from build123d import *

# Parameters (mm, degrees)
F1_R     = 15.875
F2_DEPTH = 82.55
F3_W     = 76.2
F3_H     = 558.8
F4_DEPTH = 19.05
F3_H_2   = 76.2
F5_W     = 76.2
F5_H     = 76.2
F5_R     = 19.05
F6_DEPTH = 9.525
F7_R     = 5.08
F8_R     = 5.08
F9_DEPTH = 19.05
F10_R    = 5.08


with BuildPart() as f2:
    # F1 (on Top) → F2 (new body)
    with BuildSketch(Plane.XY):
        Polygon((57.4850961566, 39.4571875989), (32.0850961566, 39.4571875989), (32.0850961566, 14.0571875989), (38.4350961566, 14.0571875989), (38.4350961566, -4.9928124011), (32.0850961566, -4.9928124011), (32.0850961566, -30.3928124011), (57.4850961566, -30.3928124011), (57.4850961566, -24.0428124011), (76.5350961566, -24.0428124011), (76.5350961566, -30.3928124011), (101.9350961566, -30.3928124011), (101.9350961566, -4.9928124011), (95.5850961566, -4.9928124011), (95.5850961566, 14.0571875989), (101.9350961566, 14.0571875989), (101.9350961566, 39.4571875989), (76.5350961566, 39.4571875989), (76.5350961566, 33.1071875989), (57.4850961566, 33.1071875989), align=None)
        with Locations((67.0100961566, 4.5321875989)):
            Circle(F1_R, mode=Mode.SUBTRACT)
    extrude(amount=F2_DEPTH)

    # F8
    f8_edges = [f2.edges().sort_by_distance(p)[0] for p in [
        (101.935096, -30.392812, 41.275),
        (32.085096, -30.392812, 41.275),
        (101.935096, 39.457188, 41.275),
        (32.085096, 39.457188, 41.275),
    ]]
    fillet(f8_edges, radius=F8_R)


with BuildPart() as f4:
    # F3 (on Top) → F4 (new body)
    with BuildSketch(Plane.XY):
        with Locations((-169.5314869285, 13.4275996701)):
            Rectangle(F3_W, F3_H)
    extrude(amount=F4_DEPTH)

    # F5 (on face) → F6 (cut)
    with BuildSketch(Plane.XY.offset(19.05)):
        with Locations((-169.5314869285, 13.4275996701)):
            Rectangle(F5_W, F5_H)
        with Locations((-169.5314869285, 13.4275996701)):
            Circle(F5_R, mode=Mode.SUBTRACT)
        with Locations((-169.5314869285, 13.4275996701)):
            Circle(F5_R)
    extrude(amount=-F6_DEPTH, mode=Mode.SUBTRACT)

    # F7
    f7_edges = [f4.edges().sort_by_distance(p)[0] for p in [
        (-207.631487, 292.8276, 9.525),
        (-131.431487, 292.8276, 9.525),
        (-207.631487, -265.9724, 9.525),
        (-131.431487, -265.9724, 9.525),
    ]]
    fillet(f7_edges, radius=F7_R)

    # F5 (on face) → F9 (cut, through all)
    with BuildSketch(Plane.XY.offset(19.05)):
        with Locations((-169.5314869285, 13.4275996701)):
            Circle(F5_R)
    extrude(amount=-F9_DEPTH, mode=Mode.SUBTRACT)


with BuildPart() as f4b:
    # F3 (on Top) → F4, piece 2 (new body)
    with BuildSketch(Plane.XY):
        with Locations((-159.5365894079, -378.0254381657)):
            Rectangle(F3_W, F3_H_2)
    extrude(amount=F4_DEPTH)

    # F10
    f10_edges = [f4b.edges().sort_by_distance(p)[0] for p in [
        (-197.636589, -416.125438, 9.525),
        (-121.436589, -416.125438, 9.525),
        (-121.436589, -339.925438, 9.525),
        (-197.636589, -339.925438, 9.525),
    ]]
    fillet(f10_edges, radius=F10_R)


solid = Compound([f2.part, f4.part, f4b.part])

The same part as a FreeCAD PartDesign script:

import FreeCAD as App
import Part
import Sketcher
Q = App.Units.Quantity


def edges_at(feature, points):
    """Names of the edges that pass closest to the given points."""
    edges = feature.Shape.Edges
    near = lambda p: min(range(len(edges)), key=lambda i: edges[i].distToShape(Part.Vertex(*p))[0])
    return sorted({f"Edge{near(p) + 1}" for p in points})

doc = App.newDocument("Part")
params = doc.addObject("Spreadsheet::Sheet", "Params")
for row, (alias, value) in enumerate([
    ("sketch1_diameter", "1.25 in"),
    ("sketch1_width", "1 in"),
    ("sketch1_width2", "0.25 in"),
    ("sketch1_width3", "0.75 in"),
    ("pad1_length", "3.25 in"),
    ("fillet_radius", "0.2 in"),
    ("sketch2_width", "3 in"),
    ("sketch2_height", "22 in"),
    ("pad2_length", "0.75 in"),
    ("sketch3_width", "3 in"),
    ("pocket1_length", "0.375 in"),
    ("fillet2_radius", "0.2 in"),
    ("sketch4_diameter", "1.5 in"),
    ("sketch5_width", "3 in"),
    ("pad3_length", "0.75 in"),
    ("fillet3_radius", "0.2 in"),
], start=1):
    params.set(f"A{row}", alias)
    params.set(f"B{row}", "=" + value)
    params.setAlias(f"B{row}", alias)

body = doc.addObject("PartDesign::Body", "Body")

# Sketch on XY plane
sketch1 = doc.addObject("Sketcher::SketchObject", "Sketch")
body.addObject(sketch1)
sketch1.AttachmentSupport = (doc.XY_Plane, [""])
sketch1.MapMode = "FlatFace"
sketch1.addGeometry(Part.LineSegment(App.Vector(57, 39, 0), App.Vector(32, 39, 0)), False)
sketch1.addGeometry(Part.LineSegment(App.Vector(32, 39, 0), App.Vector(32, 14, 0)), False)
sketch1.addGeometry(Part.LineSegment(App.Vector(32, 14, 0), App.Vector(38, 14, 0)), False)
sketch1.addGeometry(Part.LineSegment(App.Vector(38, 14, 0), App.Vector(38, -5, 0)), False)
sketch1.addGeometry(Part.LineSegment(App.Vector(38, -5, 0), App.Vector(32, -5, 0)), False)
sketch1.addGeometry(Part.LineSegment(App.Vector(32, -5, 0), App.Vector(32, -30, 0)), False)
sketch1.addGeometry(Part.LineSegment(App.Vector(32, -30, 0), App.Vector(57, -30, 0)), False)
sketch1.addGeometry(Part.LineSegment(App.Vector(57, -30, 0), App.Vector(57, -24, 0)), False)
sketch1.addGeometry(Part.LineSegment(App.Vector(57, -24, 0), App.Vector(77, -24, 0)), False)
sketch1.addGeometry(Part.LineSegment(App.Vector(77, -24, 0), App.Vector(77, -30, 0)), False)
sketch1.addGeometry(Part.LineSegment(App.Vector(77, -30, 0), App.Vector(102, -30, 0)), False)
sketch1.addGeometry(Part.LineSegment(App.Vector(102, -30, 0), App.Vector(102, -5, 0)), False)
sketch1.addGeometry(Part.LineSegment(App.Vector(102, -5, 0), App.Vector(96, -5, 0)), False)
sketch1.addGeometry(Part.LineSegment(App.Vector(96, -5, 0), App.Vector(96, 14, 0)), False)
sketch1.addGeometry(Part.LineSegment(App.Vector(96, 14, 0), App.Vector(102, 14, 0)), False)
sketch1.addGeometry(Part.LineSegment(App.Vector(102, 14, 0), App.Vector(102, 39, 0)), False)
sketch1.addGeometry(Part.LineSegment(App.Vector(102, 39, 0), App.Vector(77, 39, 0)), False)
sketch1.addGeometry(Part.LineSegment(App.Vector(77, 39, 0), App.Vector(77, 33, 0)), False)
sketch1.addGeometry(Part.LineSegment(App.Vector(77, 33, 0), App.Vector(57, 33, 0)), False)
sketch1.addGeometry(Part.LineSegment(App.Vector(57, 33, 0), App.Vector(57, 39, 0)), False)
sketch1.addGeometry(Part.Circle(App.Vector(67, 5, 0), App.Vector(0, 0, 1), 16), False)
sketch1.addConstraint(Sketcher.Constraint("Coincident", 0, 2, 1, 1))
sketch1.addConstraint(Sketcher.Constraint("Coincident", 1, 2, 2, 1))
sketch1.addConstraint(Sketcher.Constraint("Coincident", 2, 2, 3, 1))
sketch1.addConstraint(Sketcher.Constraint("Coincident", 3, 2, 4, 1))
sketch1.addConstraint(Sketcher.Constraint("Coincident", 4, 2, 5, 1))
sketch1.addConstraint(Sketcher.Constraint("Coincident", 5, 2, 6, 1))
sketch1.addConstraint(Sketcher.Constraint("Coincident", 6, 2, 7, 1))
sketch1.addConstraint(Sketcher.Constraint("Coincident", 7, 2, 8, 1))
sketch1.addConstraint(Sketcher.Constraint("Coincident", 8, 2, 9, 1))
sketch1.addConstraint(Sketcher.Constraint("Coincident", 9, 2, 10, 1))
sketch1.addConstraint(Sketcher.Constraint("Coincident", 10, 2, 11, 1))
sketch1.addConstraint(Sketcher.Constraint("Coincident", 11, 2, 12, 1))
sketch1.addConstraint(Sketcher.Constraint("Coincident", 12, 2, 13, 1))
sketch1.addConstraint(Sketcher.Constraint("Coincident", 13, 2, 14, 1))
sketch1.addConstraint(Sketcher.Constraint("Coincident", 14, 2, 15, 1))
sketch1.addConstraint(Sketcher.Constraint("Coincident", 15, 2, 16, 1))
sketch1.addConstraint(Sketcher.Constraint("Coincident", 16, 2, 17, 1))
sketch1.addConstraint(Sketcher.Constraint("Coincident", 17, 2, 18, 1))
sketch1.addConstraint(Sketcher.Constraint("Coincident", 18, 2, 19, 1))
sketch1.addConstraint(Sketcher.Constraint("Coincident", 19, 2, 0, 1))
sketch1.addConstraint(Sketcher.Constraint("Horizontal", 0))
sketch1.addConstraint(Sketcher.Constraint("Vertical", 1))
sketch1.addConstraint(Sketcher.Constraint("Horizontal", 2))
sketch1.addConstraint(Sketcher.Constraint("Vertical", 3))
sketch1.addConstraint(Sketcher.Constraint("Horizontal", 4))
sketch1.addConstraint(Sketcher.Constraint("Vertical", 5))
sketch1.addConstraint(Sketcher.Constraint("Horizontal", 6))
sketch1.addConstraint(Sketcher.Constraint("Vertical", 7))
sketch1.addConstraint(Sketcher.Constraint("Horizontal", 8))
sketch1.addConstraint(Sketcher.Constraint("Vertical", 9))
sketch1.addConstraint(Sketcher.Constraint("Horizontal", 10))
sketch1.addConstraint(Sketcher.Constraint("Vertical", 11))
sketch1.addConstraint(Sketcher.Constraint("Horizontal", 12))
sketch1.addConstraint(Sketcher.Constraint("Vertical", 13))
sketch1.addConstraint(Sketcher.Constraint("Horizontal", 14))
sketch1.addConstraint(Sketcher.Constraint("Vertical", 15))
sketch1.addConstraint(Sketcher.Constraint("Horizontal", 16))
sketch1.addConstraint(Sketcher.Constraint("Vertical", 17))
sketch1.addConstraint(Sketcher.Constraint("Horizontal", 18))
sketch1.addConstraint(Sketcher.Constraint("Vertical", 19))
sketch1.addConstraint(Sketcher.Constraint("Horizontal", 6, 2, 9, 2))
sketch1.addConstraint(Sketcher.Constraint("Horizontal", 4, 2, 11, 2))
sketch1.addConstraint(Sketcher.Constraint("Horizontal", 2, 2, 13, 2))
sketch1.addConstraint(Sketcher.Constraint("Horizontal", 0, 2, 15, 2))
sketch1.addConstraint(Sketcher.Constraint("Vertical", 1, 2, 4, 2))
sketch1.addConstraint(Sketcher.Constraint("Vertical", 11, 2, 14, 2))
sketch1.addConstraint(Sketcher.Constraint("Vertical", 9, 2, 16, 2))
sketch1.addConstraint(Sketcher.Constraint("Vertical", 7, 2, 18, 2))
sketch1.addConstraint(Sketcher.Constraint("Equal", 6, 10))
sketch1.addConstraint(Sketcher.Constraint("Equal", 4, 12))
sketch1.addConstraint(Sketcher.Constraint("Equal", 16, 1))
sketch1.addConstraint(Sketcher.Constraint("Equal", 18, 3))
sketch1.addConstraint(Sketcher.Constraint("Equal", 1, 5))
sketch1.addConstraint(Sketcher.Constraint("Equal", 14, 7))
sketch1.addConstraint(Sketcher.Constraint("Equal", 9, 17))
sketch1.addConstraint(Sketcher.Constraint("Diameter", 20, Q("1.25 in")))
sketch1.addConstraint(Sketcher.Constraint("DistanceX", 0, 2, 0, 1, Q("1 in")))
sketch1.addConstraint(Sketcher.Constraint("DistanceX", 2, 1, 2, 2, Q("0.25 in")))
sketch1.addConstraint(Sketcher.Constraint("DistanceX", 8, 1, 8, 2, Q("0.75 in")))
sketch1.addConstraint(Sketcher.Constraint("DistanceX", 0, 2, 20, 3, Q("1.375 in")))
sketch1.addConstraint(Sketcher.Constraint("DistanceY", 20, 3, 0, 2, Q("1.375 in")))
sketch1.addConstraint(Sketcher.Constraint("DistanceX", -1, 1, 20, 3, 67.010096))
sketch1.addConstraint(Sketcher.Constraint("DistanceY", -1, 1, 20, 3, 4.532188))
sketch1.setExpression("Constraints[55]", "Params.sketch1_diameter")
sketch1.setExpression("Constraints[56]", "Params.sketch1_width")
sketch1.setExpression("Constraints[57]", "Params.sketch1_width2")
sketch1.setExpression("Constraints[58]", "Params.sketch1_width3")
pad1 = doc.addObject("PartDesign::Pad", "Pad")
body.addObject(pad1)
pad1.Profile = sketch1
pad1.setExpression("Length", "Params.pad1_length")
doc.recompute()

fillet = doc.addObject("PartDesign::Fillet", "Fillet")
body.addObject(fillet)
fillet.Base = (pad1, edges_at(pad1, [
    (101.935, -30.393, 41.275),
    (32.085, -30.393, 41.275),
    (101.935, 39.457, 41.275),
    (32.085, 39.457, 41.275),
]))
fillet.setExpression("Radius", "Params.fillet_radius")
body2 = doc.addObject("PartDesign::Body", "Body001")

# Sketch on XY plane
sketch2 = doc.addObject("Sketcher::SketchObject", "Sketch001")
body2.addObject(sketch2)
sketch2.AttachmentSupport = (doc.getObject("XY_Plane001"), [""])
sketch2.MapMode = "FlatFace"
sketch2.addGeometry(Part.LineSegment(App.Vector(-208, 293, 0), App.Vector(-208, -266, 0)), False)
sketch2.addGeometry(Part.LineSegment(App.Vector(-208, -266, 0), App.Vector(-131, -266, 0)), False)
sketch2.addGeometry(Part.LineSegment(App.Vector(-131, -266, 0), App.Vector(-131, 293, 0)), False)
sketch2.addGeometry(Part.LineSegment(App.Vector(-131, 293, 0), App.Vector(-208, 293, 0)), False)
sketch2.addConstraint(Sketcher.Constraint("Coincident", 0, 2, 1, 1))
sketch2.addConstraint(Sketcher.Constraint("Coincident", 1, 2, 2, 1))
sketch2.addConstraint(Sketcher.Constraint("Coincident", 2, 2, 3, 1))
sketch2.addConstraint(Sketcher.Constraint("Coincident", 3, 2, 0, 1))
sketch2.addConstraint(Sketcher.Constraint("Vertical", 0))
sketch2.addConstraint(Sketcher.Constraint("Horizontal", 1))
sketch2.addConstraint(Sketcher.Constraint("Vertical", 2))
sketch2.addConstraint(Sketcher.Constraint("Horizontal", 3))
sketch2.addConstraint(Sketcher.Constraint("DistanceX", 1, 1, 1, 2, Q("3 in")))
sketch2.addConstraint(Sketcher.Constraint("DistanceY", 0, 2, 0, 1, Q("22 in")))
sketch2.addConstraint(Sketcher.Constraint("DistanceY", 0, 2, -1, 1, 265.9724))
sketch2.addConstraint(Sketcher.Constraint("DistanceX", 0, 2, -1, 1, 207.631487))
sketch2.setExpression("Constraints[8]", "Params.sketch2_width")
sketch2.setExpression("Constraints[9]", "Params.sketch2_height")
pad2 = doc.addObject("PartDesign::Pad", "Pad001")
body2.addObject(pad2)
pad2.Profile = sketch2
pad2.setExpression("Length", "Params.pad2_length")

# Sketch on XY plane
sketch3 = doc.addObject("Sketcher::SketchObject", "Sketch002")
body2.addObject(sketch3)
sketch3.AttachmentSupport = (doc.getObject("XY_Plane001"), [""])
sketch3.MapMode = "FlatFace"
sketch3.AttachmentOffset = App.Placement(App.Vector(0, 0, 0.75 * 25.4), App.Rotation())
sketch3.addGeometry(Part.LineSegment(App.Vector(-208, 52, 0), App.Vector(-208, -25, 0)), False)
sketch3.addGeometry(Part.LineSegment(App.Vector(-208, -25, 0), App.Vector(-131, -25, 0)), False)
sketch3.addGeometry(Part.LineSegment(App.Vector(-131, -25, 0), App.Vector(-131, 52, 0)), False)
sketch3.addGeometry(Part.LineSegment(App.Vector(-131, 52, 0), App.Vector(-208, 52, 0)), False)
sketch3.addConstraint(Sketcher.Constraint("Coincident", 0, 2, 1, 1))
sketch3.addConstraint(Sketcher.Constraint("Coincident", 1, 2, 2, 1))
sketch3.addConstraint(Sketcher.Constraint("Coincident", 2, 2, 3, 1))
sketch3.addConstraint(Sketcher.Constraint("Coincident", 3, 2, 0, 1))
sketch3.addConstraint(Sketcher.Constraint("Vertical", 0))
sketch3.addConstraint(Sketcher.Constraint("Horizontal", 1))
sketch3.addConstraint(Sketcher.Constraint("Vertical", 2))
sketch3.addConstraint(Sketcher.Constraint("Horizontal", 3))
sketch3.addConstraint(Sketcher.Constraint("Equal", 3, 0))
sketch3.addConstraint(Sketcher.Constraint("DistanceX", 1, 1, 1, 2, Q("3 in")))
sketch3.addConstraint(Sketcher.Constraint("DistanceY", 0, 2, -1, 1, 24.6724))
sketch3.addConstraint(Sketcher.Constraint("DistanceX", 0, 2, -1, 1, 207.631487))
sketch3.setExpression("Constraints[9]", "Params.sketch3_width")
pocket1 = doc.addObject("PartDesign::Pocket", "Pocket")
body2.addObject(pocket1)
pocket1.Profile = sketch3
pocket1.setExpression("Length", "Params.pocket1_length")
doc.recompute()

fillet2 = doc.addObject("PartDesign::Fillet", "Fillet001")
body2.addObject(fillet2)
fillet2.Base = (pocket1, edges_at(pocket1, [
    (-207.631, 292.828, 9.525),
    (-131.431, 292.828, 9.525),
    (-207.631, -265.972, 9.525),
    (-131.431, -265.972, 9.525),
]))
fillet2.setExpression("Radius", "Params.fillet2_radius")

# Sketch on XY plane
sketch4 = doc.addObject("Sketcher::SketchObject", "Sketch003")
body2.addObject(sketch4)
sketch4.AttachmentSupport = (doc.getObject("XY_Plane001"), [""])
sketch4.MapMode = "FlatFace"
sketch4.AttachmentOffset = App.Placement(App.Vector(0, 0, 0.75 * 25.4), App.Rotation())
sketch4.addGeometry(Part.Circle(App.Vector(-170, 13, 0), App.Vector(0, 0, 1), 19), False)
sketch4.addConstraint(Sketcher.Constraint("Diameter", 0, Q("1.5 in")))
sketch4.addConstraint(Sketcher.Constraint("DistanceY", -1, 1, 0, 3, 13.4276))
sketch4.addConstraint(Sketcher.Constraint("DistanceX", 0, 3, -1, 1, 169.531487))
sketch4.setExpression("Constraints[0]", "Params.sketch4_diameter")
pocket2 = doc.addObject("PartDesign::Pocket", "Pocket001")
body2.addObject(pocket2)
pocket2.Profile = sketch4
pocket2.Type = "ThroughAll"
body3 = doc.addObject("PartDesign::Body", "Body002")

# Sketch on XY plane
sketch5 = doc.addObject("Sketcher::SketchObject", "Sketch004")
body3.addObject(sketch5)
sketch5.AttachmentSupport = (doc.getObject("XY_Plane002"), [""])
sketch5.MapMode = "FlatFace"
sketch5.addGeometry(Part.LineSegment(App.Vector(-198, -340, 0), App.Vector(-198, -416, 0)), False)
sketch5.addGeometry(Part.LineSegment(App.Vector(-198, -416, 0), App.Vector(-121, -416, 0)), False)
sketch5.addGeometry(Part.LineSegment(App.Vector(-121, -416, 0), App.Vector(-121, -340, 0)), False)
sketch5.addGeometry(Part.LineSegment(App.Vector(-121, -340, 0), App.Vector(-198, -340, 0)), False)
sketch5.addConstraint(Sketcher.Constraint("Coincident", 0, 2, 1, 1))
sketch5.addConstraint(Sketcher.Constraint("Coincident", 1, 2, 2, 1))
sketch5.addConstraint(Sketcher.Constraint("Coincident", 2, 2, 3, 1))
sketch5.addConstraint(Sketcher.Constraint("Coincident", 3, 2, 0, 1))
sketch5.addConstraint(Sketcher.Constraint("Vertical", 0))
sketch5.addConstraint(Sketcher.Constraint("Horizontal", 1))
sketch5.addConstraint(Sketcher.Constraint("Vertical", 2))
sketch5.addConstraint(Sketcher.Constraint("Horizontal", 3))
sketch5.addConstraint(Sketcher.Constraint("Equal", 3, 0))
sketch5.addConstraint(Sketcher.Constraint("DistanceX", 1, 1, 1, 2, Q("3 in")))
sketch5.addConstraint(Sketcher.Constraint("DistanceX", 0, 2, -1, 1, 197.636589))
sketch5.addConstraint(Sketcher.Constraint("DistanceY", 0, 2, -1, 1, 416.125438))
sketch5.setExpression("Constraints[9]", "Params.sketch5_width")
pad3 = doc.addObject("PartDesign::Pad", "Pad002")
body3.addObject(pad3)
pad3.Profile = sketch5
pad3.setExpression("Length", "Params.pad3_length")
doc.recompute()

fillet3 = doc.addObject("PartDesign::Fillet", "Fillet002")
body3.addObject(fillet3)
fillet3.Base = (pad3, edges_at(pad3, [
    (-197.637, -416.125, 9.525),
    (-121.437, -416.125, 9.525),
    (-121.437, -339.925, 9.525),
    (-197.637, -339.925, 9.525),
]))
fillet3.setExpression("Radius", "Params.fillet3_radius")

doc.recompute()
